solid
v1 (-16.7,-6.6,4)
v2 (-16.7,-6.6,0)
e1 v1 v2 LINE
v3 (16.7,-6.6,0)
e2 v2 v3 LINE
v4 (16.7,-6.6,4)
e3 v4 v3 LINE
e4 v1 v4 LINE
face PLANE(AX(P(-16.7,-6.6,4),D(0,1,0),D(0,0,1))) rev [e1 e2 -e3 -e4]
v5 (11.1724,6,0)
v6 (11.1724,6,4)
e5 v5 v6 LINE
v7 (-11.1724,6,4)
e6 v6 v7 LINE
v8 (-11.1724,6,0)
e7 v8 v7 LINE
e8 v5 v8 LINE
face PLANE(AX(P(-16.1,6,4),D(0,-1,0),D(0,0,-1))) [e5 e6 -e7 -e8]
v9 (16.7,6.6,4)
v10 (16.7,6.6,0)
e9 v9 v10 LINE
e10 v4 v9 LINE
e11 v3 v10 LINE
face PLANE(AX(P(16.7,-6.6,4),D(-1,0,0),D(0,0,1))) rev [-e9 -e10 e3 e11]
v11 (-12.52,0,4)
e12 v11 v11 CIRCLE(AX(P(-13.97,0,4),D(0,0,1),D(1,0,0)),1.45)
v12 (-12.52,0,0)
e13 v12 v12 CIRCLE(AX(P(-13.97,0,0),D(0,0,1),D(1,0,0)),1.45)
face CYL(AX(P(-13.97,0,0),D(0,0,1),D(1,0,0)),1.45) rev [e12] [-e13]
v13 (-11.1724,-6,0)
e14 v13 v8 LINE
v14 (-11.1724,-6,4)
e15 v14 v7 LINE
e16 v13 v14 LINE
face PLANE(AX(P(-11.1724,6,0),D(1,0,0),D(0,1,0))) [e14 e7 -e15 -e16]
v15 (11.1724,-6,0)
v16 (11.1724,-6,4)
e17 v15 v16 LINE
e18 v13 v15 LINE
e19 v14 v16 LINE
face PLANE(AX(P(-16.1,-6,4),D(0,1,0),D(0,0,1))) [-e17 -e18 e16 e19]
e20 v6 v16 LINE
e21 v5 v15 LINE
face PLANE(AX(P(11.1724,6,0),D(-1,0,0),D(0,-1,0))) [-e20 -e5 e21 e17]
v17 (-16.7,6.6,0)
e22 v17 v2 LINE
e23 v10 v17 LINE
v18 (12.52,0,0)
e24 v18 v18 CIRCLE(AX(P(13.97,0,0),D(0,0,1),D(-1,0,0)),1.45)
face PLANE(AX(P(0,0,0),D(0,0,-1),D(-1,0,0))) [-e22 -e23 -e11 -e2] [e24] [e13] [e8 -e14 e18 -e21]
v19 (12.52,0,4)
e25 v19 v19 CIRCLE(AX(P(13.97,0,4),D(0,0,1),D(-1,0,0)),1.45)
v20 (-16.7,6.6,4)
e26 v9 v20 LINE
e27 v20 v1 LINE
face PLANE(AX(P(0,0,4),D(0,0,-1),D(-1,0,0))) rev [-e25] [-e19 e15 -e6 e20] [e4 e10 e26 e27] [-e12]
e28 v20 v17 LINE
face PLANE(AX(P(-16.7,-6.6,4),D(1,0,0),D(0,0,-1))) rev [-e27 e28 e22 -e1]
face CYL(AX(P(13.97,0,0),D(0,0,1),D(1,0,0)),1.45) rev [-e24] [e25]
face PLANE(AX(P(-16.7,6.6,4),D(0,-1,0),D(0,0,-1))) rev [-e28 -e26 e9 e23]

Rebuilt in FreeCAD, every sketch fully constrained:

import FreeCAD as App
import Part
import Sketcher
Q = App.Units.Quantity


def add_polygon(sketch, points):
    """Adds a closed chain of lines whose ends are joined by coincident constraints."""
    first, n = sketch.GeometryCount, len(points)
    for a, b in zip(points, points[1:] + points[:1]):
        sketch.addGeometry(Part.LineSegment(App.Vector(*a, 0), App.Vector(*b, 0)), False)
    for i in range(n):
        sketch.addConstraint(Sketcher.Constraint("Coincident", first + i, 2, first + (i + 1) % n, 1))

doc = App.newDocument("Part")
body = doc.addObject("PartDesign::Body", "Body")

# Sketch on XY plane
sketch1 = body.newObject("Sketcher::SketchObject", "Sketch")
sketch1.AttachmentSupport = (doc.getObject("XY_Plane"), [""])
sketch1.MapMode = "FlatFace"
add_polygon(sketch1, [(-17, 7), (-17, -7), (17, -7), (17, 7)])  # lines 0-3
add_polygon(sketch1, [(16, -6), (-16, -6), (-16, 6), (16, 6)])  # lines 4-7
sketch1.addConstraint(Sketcher.Constraint("Vertical", 0))
sketch1.addConstraint(Sketcher.Constraint("Horizontal", 1))
sketch1.addConstraint(Sketcher.Constraint("Vertical", 2))
sketch1.addConstraint(Sketcher.Constraint("Horizontal", 3))
sketch1.addConstraint(Sketcher.Constraint("Horizontal", 4))
sketch1.addConstraint(Sketcher.Constraint("Vertical", 5))
sketch1.addConstraint(Sketcher.Constraint("Horizontal", 6))
sketch1.addConstraint(Sketcher.Constraint("Vertical", 7))
sketch1.addConstraint(Sketcher.Constraint("Symmetric", 0, 2, 2, 2, -1, 1))
sketch1.addConstraint(Sketcher.Constraint("Symmetric", 4, 2, 6, 2, -1, 1))
sketch1.addConstraint(Sketcher.Constraint("DistanceY", 5, 1, 5, 2, Q("12 mm")))
sketch1.addConstraint(Sketcher.Constraint("DistanceX", 1, 1, 1, 2, Q("33.4 mm")))
sketch1.addConstraint(Sketcher.Constraint("DistanceX", 4, 2, 4, 1, Q("32.2 mm")))
sketch1.addConstraint(Sketcher.Constraint("DistanceY", 0, 2, 0, 1, Q("13.2 mm")))
pad1 = body.newObject("PartDesign::Pad", "Pad")
pad1.Profile = sketch1
pad1.Length = 4

# Sketch on XY plane
sketch2 = body.newObject("Sketcher::SketchObject", "Sketch001")
sketch2.AttachmentSupport = (doc.getObject("XY_Plane"), [""])
sketch2.MapMode = "FlatFace"
sketch2.AttachmentOffset = App.Placement(App.Vector(0, 0, 4), App.Rotation())
add_polygon(sketch2, [(-16.1, 6), (-16.1, -6), (-11.2, -6), (-11.2, 6)])  # lines 0-3
add_polygon(sketch2, [(11.2, 6), (11.2, -6), (16.1, -6), (16.1, 6)])  # lines 4-7
sketch2.addConstraint(Sketcher.Constraint("Vertical", 0))
sketch2.addConstraint(Sketcher.Constraint("Horizontal", 1))
sketch2.addConstraint(Sketcher.Constraint("Vertical", 2))
sketch2.addConstraint(Sketcher.Constraint("Horizontal", 3))
sketch2.addConstraint(Sketcher.Constraint("Vertical", 4))
sketch2.addConstraint(Sketcher.Constraint("Horizontal", 5))
sketch2.addConstraint(Sketcher.Constraint("Vertical", 6))
sketch2.addConstraint(Sketcher.Constraint("Horizontal", 7))
sketch2.addConstraint(Sketcher.Constraint("Symmetric", 2, 2, 4, 2, -1, 1))
sketch2.addConstraint(Sketcher.Constraint("Symmetric", 0, 2, 6, 2, -1, 1))
sketch2.addConstraint(Sketcher.Constraint("Horizontal", 1, 2, 4, 2))
sketch2.addConstraint(Sketcher.Constraint("DistanceY", 0, 2, 0, 1, Q("12 mm")))
sketch2.addConstraint(Sketcher.Constraint("DistanceX", 0, 2, -1, 1, Q("16.1 mm")))
sketch2.addConstraint(Sketcher.Constraint("DistanceX", 1, 1, 1, 2, Q("4.9276 mm")))
pad2 = body.newObject("PartDesign::Pad", "Pad001")
pad2.Profile = sketch2
pad2.Length = 4
pad2.Reversed = True

# Sketch on XY plane
sketch3 = body.newObject("Sketcher::SketchObject", "Sketch002")
sketch3.AttachmentSupport = (doc.getObject("XY_Plane"), [""])
sketch3.MapMode = "FlatFace"
sketch3.AttachmentOffset = App.Placement(App.Vector(0, 0, 4), App.Rotation())
sketch3.addGeometry(Part.Circle(App.Vector(-14, 0, 0), App.Vector(0, 0, 1), 1.4), False)
sketch3.addGeometry(Part.Circle(App.Vector(14, 0, 0), App.Vector(0, 0, 1), 1.4), False)
sketch3.addConstraint(Sketcher.Constraint("Equal", 0, 1))
sketch3.addConstraint(Sketcher.Constraint("Symmetric", 0, 3, 1, 3, -1, 1))
sketch3.addConstraint(Sketcher.Constraint("PointOnObject", 0, 3, -1))
sketch3.addConstraint(Sketcher.Constraint("Diameter", 0, Q("2.9 mm")))
sketch3.addConstraint(Sketcher.Constraint("DistanceX", 0, 3, -1, 1, Q("13.97 mm")))
pocket1 = body.newObject("PartDesign::Pocket", "Pocket")
pocket1.Profile = sketch3
pocket1.Type = "ThroughAll"

doc.recompute()
